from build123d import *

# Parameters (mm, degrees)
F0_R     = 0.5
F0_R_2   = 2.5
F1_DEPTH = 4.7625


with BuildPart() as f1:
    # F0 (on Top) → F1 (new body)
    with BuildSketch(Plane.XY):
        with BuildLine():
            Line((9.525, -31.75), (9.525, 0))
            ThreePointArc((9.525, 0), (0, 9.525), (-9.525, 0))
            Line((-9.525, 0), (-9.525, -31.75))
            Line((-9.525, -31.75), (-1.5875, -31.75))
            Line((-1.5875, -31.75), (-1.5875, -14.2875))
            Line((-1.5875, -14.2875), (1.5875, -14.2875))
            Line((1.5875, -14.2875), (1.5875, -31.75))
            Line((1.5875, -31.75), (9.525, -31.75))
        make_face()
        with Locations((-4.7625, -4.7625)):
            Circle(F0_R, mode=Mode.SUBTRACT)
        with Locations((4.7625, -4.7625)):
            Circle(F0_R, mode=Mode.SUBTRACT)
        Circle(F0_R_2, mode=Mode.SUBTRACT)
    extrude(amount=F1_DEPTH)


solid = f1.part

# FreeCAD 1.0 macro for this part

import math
import FreeCAD as App
import Part
import Sketcher
Q = App.Units.Quantity

doc = App.newDocument("Part")
body = doc.addObject("PartDesign::Body", "Body")

# Sketch on XY plane
sketch1 = doc.addObject("Sketcher::SketchObject", "Sketch")
body.addObject(sketch1)
sketch1.AttachmentSupport = (doc.XY_Plane, [""])
sketch1.MapMode = "FlatFace"
sketch1.addGeometry([
    Part.LineSegment(App.Vector(9.5, -31.8, 0), App.Vector(9.5, 0, 0)),  # 0
    Part.ArcOfCircle(Part.Circle(App.Vector(0, 0, 0), App.Vector(0, 0, 1), 9.5), math.radians(0), math.radians(180)),  # 1
    Part.LineSegment(App.Vector(-9.5, 0, 0), App.Vector(-9.5, -31.8, 0)),  # 2
    Part.LineSegment(App.Vector(-9.5, -31.8, 0), App.Vector(-1.6, -31.8, 0)),  # 3
    Part.LineSegment(App.Vector(-1.6, -31.8, 0), App.Vector(-1.6, -14.3, 0)),  # 4
    Part.LineSegment(App.Vector(-1.6, -14.3, 0), App.Vector(1.6, -14.3, 0)),  # 5
    Part.LineSegment(App.Vector(1.6, -14.3, 0), App.Vector(1.6, -31.8, 0)),  # 6
    Part.LineSegment(App.Vector(1.6, -31.8, 0), App.Vector(9.5, -31.8, 0)),  # 7
    Part.Circle(App.Vector(-4.8, -4.8, 0), App.Vector(0, 0, 1), 0.5),  # 8
    Part.Circle(App.Vector(4.8, -4.8, 0), App.Vector(0, 0, 1), 0.5),  # 9
    Part.Circle(App.Vector(0, 0, 0), App.Vector(0, 0, 1), 2.5),  # 10
], False)
sketch1.addConstraint([
    Sketcher.Constraint("Tangent", 0, 2, 1, 1),
    Sketcher.Constraint("Tangent", 1, 2, 2, 1),
    Sketcher.Constraint("Coincident", 2, 2, 3, 1),
    Sketcher.Constraint("Coincident", 3, 2, 4, 1),
    Sketcher.Constraint("Coincident", 4, 2, 5, 1),
    Sketcher.Constraint("Coincident", 5, 2, 6, 1),
    Sketcher.Constraint("Coincident", 6, 2, 7, 1),
    Sketcher.Constraint("Coincident", 7, 2, 0, 1),
    Sketcher.Constraint("Vertical", 0),
    Sketcher.Constraint("Vertical", 2),
    Sketcher.Constraint("Horizontal", 3),
    Sketcher.Constraint("Vertical", 4),
    Sketcher.Constraint("Horizontal", 5),
    Sketcher.Constraint("Vertical", 6),
    Sketcher.Constraint("Horizontal", 7),
    Sketcher.Constraint("Coincident", 1, 3, -1, 1),
    Sketcher.Constraint("Coincident", 10, 3, -1, 1),
    Sketcher.Constraint("Equal", 8, 9),
    Sketcher.Constraint("Symmetric", 8, 3, 9, 3, -2),
    Sketcher.Constraint("Symmetric", 3, 2, 6, 2, -2),
    Sketcher.Constraint("Radius", 1, Q("0.375 in")),
    Sketcher.Constraint("DistanceY", 0, 1, 0, 2, Q("1.25 in")),
    Sketcher.Constraint("Diameter", 8, 1.0),
    Sketcher.Constraint("Diameter", 10, 5.0),
    Sketcher.Constraint("DistanceX", 3, 1, 3, 2, Q("0.3125 in")),
    Sketcher.Constraint("DistanceY", 4, 1, 4, 2, Q("0.6875 in")),
    Sketcher.Constraint("DistanceX", 3, 2, 9, 3, Q("0.25 in")),
    Sketcher.Constraint("DistanceY", 8, 3, -1, 1, Q("0.1875 in")),
])
pad1 = doc.addObject("PartDesign::Pad", "Pad")
body.addObject(pad1)
pad1.Profile = sketch1
pad1.Length = Q("0.1875 in")

doc.recompute()
